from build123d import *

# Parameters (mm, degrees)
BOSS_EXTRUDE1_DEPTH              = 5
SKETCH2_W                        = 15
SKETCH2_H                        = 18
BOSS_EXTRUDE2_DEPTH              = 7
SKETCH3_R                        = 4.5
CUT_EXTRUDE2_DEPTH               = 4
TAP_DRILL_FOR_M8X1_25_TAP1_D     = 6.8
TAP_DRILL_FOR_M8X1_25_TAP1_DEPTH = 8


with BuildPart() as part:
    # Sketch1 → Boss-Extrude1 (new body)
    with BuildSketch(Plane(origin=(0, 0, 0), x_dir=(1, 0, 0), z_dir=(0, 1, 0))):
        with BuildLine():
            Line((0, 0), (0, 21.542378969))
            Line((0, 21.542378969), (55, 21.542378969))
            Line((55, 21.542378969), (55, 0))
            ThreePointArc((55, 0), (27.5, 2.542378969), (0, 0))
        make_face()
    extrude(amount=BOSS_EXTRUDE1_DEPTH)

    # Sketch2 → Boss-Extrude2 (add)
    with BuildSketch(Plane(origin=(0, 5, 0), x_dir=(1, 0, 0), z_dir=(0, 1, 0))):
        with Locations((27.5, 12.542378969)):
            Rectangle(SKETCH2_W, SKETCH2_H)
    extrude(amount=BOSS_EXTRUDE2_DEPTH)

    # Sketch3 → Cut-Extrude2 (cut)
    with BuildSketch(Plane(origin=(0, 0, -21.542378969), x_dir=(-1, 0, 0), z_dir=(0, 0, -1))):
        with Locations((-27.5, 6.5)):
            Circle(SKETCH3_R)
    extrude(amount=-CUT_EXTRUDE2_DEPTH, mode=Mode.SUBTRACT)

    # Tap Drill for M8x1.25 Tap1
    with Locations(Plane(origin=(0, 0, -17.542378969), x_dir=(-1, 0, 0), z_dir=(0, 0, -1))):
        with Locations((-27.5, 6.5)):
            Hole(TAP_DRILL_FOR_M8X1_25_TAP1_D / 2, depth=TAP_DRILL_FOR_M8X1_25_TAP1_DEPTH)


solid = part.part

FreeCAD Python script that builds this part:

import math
import FreeCAD as App
import Part
import Sketcher
Q = App.Units.Quantity

doc = App.newDocument("Part")
body = doc.addObject("PartDesign::Body", "Body")

sketch1 = body.newObject("Sketcher::SketchObject", "Sketch")
sketch1.AttachmentSupport = (doc.getObject("XZ_Plane"), [""])
sketch1.MapMode = "FlatFace"
sketch1.addGeometry([
    Part.LineSegment(App.Vector(0, -22, 0), App.Vector(0, 0, 0)),
    Part.ArcOfCircle(Part.Circle(App.Vector(28, 147, 0), App.Vector(0, 0, 1), 150), math.radians(-101), math.radians(-79)),
    Part.LineSegment(App.Vector(55, 0, 0), App.Vector(55, -22, 0)),
    Part.LineSegment(App.Vector(55, -22, 0), App.Vector(0, -22, 0)),
], False)
sketch1.addConstraint([
    Sketcher.Constraint("Coincident", 0, 2, 1, 1),
    Sketcher.Constraint("Coincident", 1, 2, 2, 1),
    Sketcher.Constraint("Coincident", 2, 2, 3, 1),
    Sketcher.Constraint("Coincident", 3, 2, 0, 1),
    Sketcher.Constraint("Vertical", 0),
    Sketcher.Constraint("Vertical", 2),
    Sketcher.Constraint("Horizontal", 3),
    Sketcher.Constraint("Coincident", 0, 2, -1, 1),
    Sketcher.Constraint("PointOnObject", 1, 2, -1),
    Sketcher.Constraint("Radius", 1, Q("150 mm")),
    Sketcher.Constraint("DistanceX", 3, 2, 3, 1, Q("55 mm")),
    Sketcher.Constraint("DistanceY", 2, 2, 1, 3, Q("169 mm")),
])
pad1 = body.newObject("PartDesign::Pad", "Pad")
pad1.Profile = sketch1
pad1.Length = 5
pad1.Reversed = True

sketch2 = body.newObject("Sketcher::SketchObject", "Sketch001")
sketch2.AttachmentSupport = (doc.getObject("XZ_Plane"), [""])
sketch2.MapMode = "FlatFace"
sketch2.AttachmentOffset = App.Placement(App.Vector(0, 0, -5), App.Rotation())
sketch2.addGeometry([
    Part.LineSegment(App.Vector(20, -22, 0), App.Vector(20, -4, 0)),
    Part.LineSegment(App.Vector(20, -4, 0), App.Vector(35, -4, 0)),
    Part.LineSegment(App.Vector(35, -4, 0), App.Vector(35, -22, 0)),
    Part.LineSegment(App.Vector(35, -22, 0), App.Vector(20, -22, 0)),
], False)
sketch2.addConstraint([
    Sketcher.Constraint("Coincident", 0, 2, 1, 1),
    Sketcher.Constraint("Coincident", 1, 2, 2, 1),
    Sketcher.Constraint("Coincident", 2, 2, 3, 1),
    Sketcher.Constraint("Coincident", 3, 2, 0, 1),
    Sketcher.Constraint("Vertical", 0),
    Sketcher.Constraint("Horizontal", 1),
    Sketcher.Constraint("Vertical", 2),
    Sketcher.Constraint("Horizontal", 3),
    Sketcher.Constraint("DistanceX", 1, 1, 1, 2, Q("15 mm")),
    Sketcher.Constraint("DistanceY", 0, 1, 0, 2, Q("18 mm")),
    Sketcher.Constraint("DistanceX", -1, 1, 0, 2, Q("20 mm")),
    Sketcher.Constraint("DistanceY", 0, 2, -1, 1, Q("3.542379 mm")),
])
pad2 = body.newObject("PartDesign::Pad", "Pad001")
pad2.Profile = sketch2
pad2.Length = 7
pad2.Reversed = True

sketch3 = body.newObject("Sketcher::SketchObject", "Sketch002")
sketch3.AttachmentSupport = (doc.getObject("XY_Plane"), [""])
sketch3.MapMode = "FlatFace"
sketch3.AttachmentOffset = App.Placement(App.Vector(0, 0, -21.542379), App.Rotation())
sketch3.addGeometry(Part.Circle(App.Vector(27.5, 6.5, 0), App.Vector(0, 0, 1), 4.5), False)
sketch3.addConstraint([
    Sketcher.Constraint("Diameter", 0, Q("9 mm")),
    Sketcher.Constraint("DistanceX", -1, 1, 0, 3, Q("27.5 mm")),
    Sketcher.Constraint("DistanceY", -1, 1, 0, 3, Q("6.5 mm")),
])
pocket1 = body.newObject("PartDesign::Pocket", "Pocket")
pocket1.Profile = sketch3
pocket1.Length = 4
pocket1.Reversed = True

sketch4 = body.newObject("Sketcher::SketchObject", "Sketch003")
sketch4.AttachmentSupport = (doc.getObject("XY_Plane"), [""])
sketch4.MapMode = "FlatFace"
sketch4.AttachmentOffset = App.Placement(App.Vector(0, 0, -17.542379), App.Rotation())
sketch4.addGeometry(Part.Circle(App.Vector(27.5, 6.5, 0), App.Vector(0, 0, 1), 3.4), False)
sketch4.addConstraint([
    Sketcher.Constraint("Diameter", 0, Q("6.8 mm")),
    Sketcher.Constraint("DistanceX", -1, 1, 0, 3, Q("27.5 mm")),
    Sketcher.Constraint("DistanceY", -1, 1, 0, 3, Q("6.5 mm")),
])
doc.recompute()
hole = body.newObject("PartDesign::Hole", "Hole")
hole.Profile = sketch4
hole.ThreadType = "None"
hole.Diameter = 6.8
hole.DepthType = "Dimension"
hole.Depth = 8
hole.DrillPoint = "Flat"
hole.Reversed = True

doc.recompute()
